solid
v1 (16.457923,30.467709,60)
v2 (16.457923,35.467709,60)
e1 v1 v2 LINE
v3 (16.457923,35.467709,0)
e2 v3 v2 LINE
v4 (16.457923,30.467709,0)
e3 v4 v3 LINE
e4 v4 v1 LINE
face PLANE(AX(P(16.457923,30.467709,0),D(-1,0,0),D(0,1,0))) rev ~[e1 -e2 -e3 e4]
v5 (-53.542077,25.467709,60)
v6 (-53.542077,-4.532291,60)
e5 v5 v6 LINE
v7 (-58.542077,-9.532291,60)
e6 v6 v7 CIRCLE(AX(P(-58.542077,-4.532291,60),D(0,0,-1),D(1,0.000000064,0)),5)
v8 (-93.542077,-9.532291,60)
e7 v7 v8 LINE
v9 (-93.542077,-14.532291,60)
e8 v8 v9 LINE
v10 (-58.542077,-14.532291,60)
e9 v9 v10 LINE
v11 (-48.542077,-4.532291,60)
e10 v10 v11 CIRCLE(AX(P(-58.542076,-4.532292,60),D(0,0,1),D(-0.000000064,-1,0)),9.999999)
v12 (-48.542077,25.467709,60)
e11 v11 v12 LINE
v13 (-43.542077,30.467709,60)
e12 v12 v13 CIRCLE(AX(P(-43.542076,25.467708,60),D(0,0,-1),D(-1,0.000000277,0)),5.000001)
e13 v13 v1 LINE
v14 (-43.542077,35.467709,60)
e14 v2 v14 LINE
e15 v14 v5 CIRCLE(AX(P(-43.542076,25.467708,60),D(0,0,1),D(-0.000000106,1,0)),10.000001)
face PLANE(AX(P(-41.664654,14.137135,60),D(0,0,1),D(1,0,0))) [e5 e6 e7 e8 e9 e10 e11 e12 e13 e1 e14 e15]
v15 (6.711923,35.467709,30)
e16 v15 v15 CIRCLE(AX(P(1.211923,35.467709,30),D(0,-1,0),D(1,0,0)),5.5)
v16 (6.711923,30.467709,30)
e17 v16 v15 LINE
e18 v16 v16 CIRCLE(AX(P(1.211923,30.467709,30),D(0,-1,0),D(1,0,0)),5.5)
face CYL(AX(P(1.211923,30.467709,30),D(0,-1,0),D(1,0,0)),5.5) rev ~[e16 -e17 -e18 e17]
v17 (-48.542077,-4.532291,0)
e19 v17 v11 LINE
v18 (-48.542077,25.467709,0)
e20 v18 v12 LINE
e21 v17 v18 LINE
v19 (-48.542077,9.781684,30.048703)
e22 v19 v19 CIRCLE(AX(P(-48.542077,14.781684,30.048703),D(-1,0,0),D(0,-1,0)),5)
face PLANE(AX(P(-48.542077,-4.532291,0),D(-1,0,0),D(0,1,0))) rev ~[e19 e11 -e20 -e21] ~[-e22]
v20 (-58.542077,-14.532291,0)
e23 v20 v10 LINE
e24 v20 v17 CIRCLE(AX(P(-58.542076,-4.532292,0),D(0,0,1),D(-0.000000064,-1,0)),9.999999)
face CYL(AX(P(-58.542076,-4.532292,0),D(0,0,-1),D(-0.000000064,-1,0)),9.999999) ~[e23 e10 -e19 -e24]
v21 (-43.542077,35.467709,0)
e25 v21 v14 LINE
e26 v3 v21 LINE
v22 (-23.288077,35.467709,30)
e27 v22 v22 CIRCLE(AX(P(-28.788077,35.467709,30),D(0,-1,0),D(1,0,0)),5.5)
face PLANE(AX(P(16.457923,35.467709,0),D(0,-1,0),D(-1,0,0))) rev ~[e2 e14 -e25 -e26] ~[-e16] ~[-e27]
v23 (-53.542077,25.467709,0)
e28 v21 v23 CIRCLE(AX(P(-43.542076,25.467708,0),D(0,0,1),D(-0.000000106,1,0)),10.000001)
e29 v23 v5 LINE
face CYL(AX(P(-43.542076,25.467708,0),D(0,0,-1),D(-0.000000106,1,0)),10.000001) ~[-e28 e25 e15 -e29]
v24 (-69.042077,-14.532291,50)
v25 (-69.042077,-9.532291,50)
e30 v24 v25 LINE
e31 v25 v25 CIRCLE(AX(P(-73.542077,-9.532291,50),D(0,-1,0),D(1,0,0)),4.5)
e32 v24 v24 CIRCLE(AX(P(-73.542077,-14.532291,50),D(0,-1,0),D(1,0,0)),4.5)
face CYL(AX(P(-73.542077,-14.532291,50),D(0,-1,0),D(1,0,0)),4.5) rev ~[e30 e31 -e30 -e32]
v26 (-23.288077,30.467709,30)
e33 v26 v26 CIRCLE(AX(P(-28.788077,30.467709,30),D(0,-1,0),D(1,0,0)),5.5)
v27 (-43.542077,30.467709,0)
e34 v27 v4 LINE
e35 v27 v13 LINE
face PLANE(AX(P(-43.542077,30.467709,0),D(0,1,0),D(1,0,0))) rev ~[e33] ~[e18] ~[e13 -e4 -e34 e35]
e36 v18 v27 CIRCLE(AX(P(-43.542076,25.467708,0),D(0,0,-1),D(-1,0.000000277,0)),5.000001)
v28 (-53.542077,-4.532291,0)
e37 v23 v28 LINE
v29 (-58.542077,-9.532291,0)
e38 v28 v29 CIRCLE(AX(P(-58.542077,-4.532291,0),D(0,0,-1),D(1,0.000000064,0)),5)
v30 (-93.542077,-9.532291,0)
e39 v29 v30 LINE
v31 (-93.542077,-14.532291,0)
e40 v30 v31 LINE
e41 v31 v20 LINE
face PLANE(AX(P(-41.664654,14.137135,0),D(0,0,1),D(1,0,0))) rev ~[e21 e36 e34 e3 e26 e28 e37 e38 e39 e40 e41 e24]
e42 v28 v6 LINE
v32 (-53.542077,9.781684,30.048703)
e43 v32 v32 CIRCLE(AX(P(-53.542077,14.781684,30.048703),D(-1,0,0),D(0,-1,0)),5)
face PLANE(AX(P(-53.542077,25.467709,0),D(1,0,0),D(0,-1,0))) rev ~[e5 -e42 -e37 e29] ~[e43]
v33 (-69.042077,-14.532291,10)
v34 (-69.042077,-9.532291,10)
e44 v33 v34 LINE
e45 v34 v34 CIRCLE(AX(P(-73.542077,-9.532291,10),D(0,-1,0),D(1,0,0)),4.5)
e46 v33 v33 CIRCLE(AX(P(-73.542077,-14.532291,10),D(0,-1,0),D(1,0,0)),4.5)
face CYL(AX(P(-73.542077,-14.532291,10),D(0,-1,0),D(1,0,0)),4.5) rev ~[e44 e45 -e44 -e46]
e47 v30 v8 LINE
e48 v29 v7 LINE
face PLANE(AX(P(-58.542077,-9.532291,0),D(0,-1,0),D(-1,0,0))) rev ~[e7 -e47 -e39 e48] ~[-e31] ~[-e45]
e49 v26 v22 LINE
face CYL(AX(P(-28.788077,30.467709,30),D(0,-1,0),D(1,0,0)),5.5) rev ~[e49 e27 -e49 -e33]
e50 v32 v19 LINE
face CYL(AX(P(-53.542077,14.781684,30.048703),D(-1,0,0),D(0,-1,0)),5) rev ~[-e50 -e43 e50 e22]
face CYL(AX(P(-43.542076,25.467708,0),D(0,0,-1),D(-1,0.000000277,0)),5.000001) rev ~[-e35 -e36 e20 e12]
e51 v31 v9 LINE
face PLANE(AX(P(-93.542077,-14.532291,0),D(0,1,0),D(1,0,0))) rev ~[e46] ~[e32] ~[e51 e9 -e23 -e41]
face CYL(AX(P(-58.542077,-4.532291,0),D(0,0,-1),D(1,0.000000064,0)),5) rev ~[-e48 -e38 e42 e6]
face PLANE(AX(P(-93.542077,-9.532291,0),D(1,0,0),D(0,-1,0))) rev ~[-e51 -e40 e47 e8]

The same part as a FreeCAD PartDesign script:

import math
import FreeCAD as App
import Part
import Sketcher
from FreeCAD import Vector

doc = App.newDocument("Part")
body = doc.addObject("PartDesign::Body", "Body")

# Sketch on XY plane
sketch1 = body.newObject("Sketcher::SketchObject", "Sketch")
sketch1.AttachmentSupport = (doc.getObject("XY_Plane"), [""])
sketch1.MapMode = "FlatFace"
sketch1.addGeometry(Part.LineSegment(Vector(-58.542077, -9.532291, 0), Vector(-93.542077, -9.532291, 0)), False)
sketch1.addGeometry(Part.LineSegment(Vector(-93.542077, -9.532291, 0), Vector(-93.542077, -14.532291, 0)), False)
sketch1.addGeometry(Part.LineSegment(Vector(-93.542077, -14.532291, 0), Vector(-58.542077, -14.532291, 0)), False)
sketch1.addGeometry(Part.ArcOfCircle(Part.Circle(Vector(-58.542076, -4.532292, 0), Vector(0, 0, 1), 9.999999), math.radians(-90.000004), math.radians(0.000004)), False)
sketch1.addGeometry(Part.LineSegment(Vector(-48.542077, -4.532291, 0), Vector(-48.542077, 25.467709, 0)), False)
sketch1.addGeometry(Part.ArcOfCircle(Part.Circle(Vector(-43.542076, 25.467708, 0), Vector(0, 0, 1), 5.000001), math.radians(90.000016), math.radians(179.999984)), False)
sketch1.addGeometry(Part.LineSegment(Vector(-43.542077, 30.467709, 0), Vector(16.457923, 30.467709, 0)), False)
sketch1.addGeometry(Part.LineSegment(Vector(16.457923, 30.467709, 0), Vector(16.457923, 35.467709, 0)), False)
sketch1.addGeometry(Part.LineSegment(Vector(16.457923, 35.467709, 0), Vector(-43.542077, 35.467709, 0)), False)
sketch1.addGeometry(Part.ArcOfCircle(Part.Circle(Vector(-43.542076, 25.467708, 0), Vector(0, 0, 1), 10.000001), math.radians(90.000006), math.radians(179.999994)), False)
sketch1.addGeometry(Part.LineSegment(Vector(-53.542077, 25.467709, 0), Vector(-53.542077, -4.532291, 0)), False)
sketch1.addGeometry(Part.ArcOfCircle(Part.Circle(Vector(-58.542077, -4.532291, 0), Vector(0, 0, 1), 5), math.radians(-90.000004), math.radians(0.000004)), False)
sketch1.addConstraint(Sketcher.Constraint("Coincident", 0, 2, 1, 1))
sketch1.addConstraint(Sketcher.Constraint("Coincident", 1, 2, 2, 1))
sketch1.addConstraint(Sketcher.Constraint("Tangent", 2, 2, 3, 1))
sketch1.addConstraint(Sketcher.Constraint("Tangent", 3, 2, 4, 1))
sketch1.addConstraint(Sketcher.Constraint("Tangent", 4, 2, 5, 2))
sketch1.addConstraint(Sketcher.Constraint("Tangent", 5, 1, 6, 1))
sketch1.addConstraint(Sketcher.Constraint("Coincident", 6, 2, 7, 1))
sketch1.addConstraint(Sketcher.Constraint("Coincident", 7, 2, 8, 1))
sketch1.addConstraint(Sketcher.Constraint("Tangent", 8, 2, 9, 1))
sketch1.addConstraint(Sketcher.Constraint("Tangent", 9, 2, 10, 1))
sketch1.addConstraint(Sketcher.Constraint("Tangent", 10, 2, 11, 2))
sketch1.addConstraint(Sketcher.Constraint("Tangent", 11, 1, 0, 1))
sketch1.addConstraint(Sketcher.Constraint("Horizontal", 0))
sketch1.addConstraint(Sketcher.Constraint("Vertical", 1))
sketch1.addConstraint(Sketcher.Constraint("Horizontal", 2))
sketch1.addConstraint(Sketcher.Constraint("Vertical", 4))
sketch1.addConstraint(Sketcher.Constraint("Horizontal", 6))
sketch1.addConstraint(Sketcher.Constraint("Vertical", 7))
sketch1.addConstraint(Sketcher.Constraint("Horizontal", 8))
sketch1.addConstraint(Sketcher.Constraint("Vertical", 10))
sketch1.addConstraint(Sketcher.Constraint("Coincident", 9, 3, 5, 3))
sketch1.addConstraint(Sketcher.Constraint("Coincident", 11, 3, 3, 3))
sketch1.addConstraint(Sketcher.Constraint("Equal", 3, 9))
sketch1.addConstraint(Sketcher.Constraint("Radius", 3, 9.999999))
sketch1.addConstraint(Sketcher.Constraint("Radius", 5, 5.000001))
sketch1.addConstraint(Sketcher.Constraint("DistanceX", 0, 2, 0, 1, 35.0))
sketch1.addConstraint(Sketcher.Constraint("DistanceX", 6, 1, 6, 2, 60.0))
sketch1.addConstraint(Sketcher.Constraint("DistanceY", 4, 1, 4, 2, 30.0))
sketch1.addConstraint(Sketcher.Constraint("DistanceY", 3, 3, -1, 1, 4.532292))
sketch1.addConstraint(Sketcher.Constraint("DistanceX", 3, 3, -1, 1, 58.542076))
pad1 = body.newObject("PartDesign::Pad", "Pad")
pad1.Profile = sketch1
pad1.Length = 60

# Sketch on YZ plane
sketch2 = body.newObject("Sketcher::SketchObject", "Sketch001")
sketch2.AttachmentSupport = (doc.getObject("YZ_Plane"), [""])
sketch2.MapMode = "FlatFace"
sketch2.AttachmentOffset = App.Placement(Vector(0, 0, -53.542077), App.Rotation())
sketch2.addGeometry(Part.Circle(Vector(14.781684, 30.048703, 0), Vector(0, 0, 1), 5), False)
sketch2.addConstraint(Sketcher.Constraint("Diameter", 0, 10.0))
sketch2.addConstraint(Sketcher.Constraint("DistanceX", -1, 1, 0, 3, 14.781684))
sketch2.addConstraint(Sketcher.Constraint("DistanceY", -1, 1, 0, 3, 30.048703))
pocket1 = body.newObject("PartDesign::Pocket", "Pocket")
pocket1.Profile = sketch2
pocket1.Length = 25
pocket1.Reversed = True

# Sketch on XZ plane
sketch3 = body.newObject("Sketcher::SketchObject", "Sketch002")
sketch3.AttachmentSupport = (doc.getObject("XZ_Plane"), [""])
sketch3.MapMode = "FlatFace"
sketch3.AttachmentOffset = App.Placement(Vector(0, 0, 14.532291), App.Rotation())
sketch3.addGeometry(Part.Circle(Vector(-73.542077, 50, 0), Vector(0, 0, 1), 4.5), False)
sketch3.addGeometry(Part.Circle(Vector(-73.542077, 10, 0), Vector(0, 0, 1), 4.5), False)
sketch3.addGeometry(Part.Circle(Vector(-28.542077, 30, 0), Vector(0, 0, 1), 5.5), False)
sketch3.addGeometry(Part.Circle(Vector(1.457923, 30, 0), Vector(0, 0, 1), 5.5), False)
sketch3.addConstraint(Sketcher.Constraint("Equal", 0, 1))
sketch3.addConstraint(Sketcher.Constraint("Equal", 2, 3))
sketch3.addConstraint(Sketcher.Constraint("Horizontal", 2, 3, 3, 3))
sketch3.addConstraint(Sketcher.Constraint("Vertical", 0, 3, 1, 3))
sketch3.addConstraint(Sketcher.Constraint("Diameter", 0, 9.0))
sketch3.addConstraint(Sketcher.Constraint("Diameter", 2, 11.0))
sketch3.addConstraint(Sketcher.Constraint("DistanceY", -1, 1, 0, 3, 50.0))
sketch3.addConstraint(Sketcher.Constraint("DistanceY", -1, 1, 1, 3, 10.0))
sketch3.addConstraint(Sketcher.Constraint("DistanceY", -1, 1, 2, 3, 30.0))
sketch3.addConstraint(Sketcher.Constraint("DistanceX", 0, 3, 2, 3, 45.0))
sketch3.addConstraint(Sketcher.Constraint("DistanceX", 2, 3, 3, 3, 30.0))
sketch3.addConstraint(Sketcher.Constraint("DistanceX", 0, 3, -1, 1, 73.542077))
pocket2 = body.newObject("PartDesign::Pocket", "Pocket001")
pocket2.Profile = sketch3
pocket2.Length = 25

# Sketch on XZ plane
sketch4 = body.newObject("Sketcher::SketchObject", "Sketch003")
sketch4.AttachmentSupport = (doc.getObject("XZ_Plane"), [""])
sketch4.MapMode = "FlatFace"
sketch4.AttachmentOffset = App.Placement(Vector(0, 0, 14.532291), App.Rotation())
sketch4.addGeometry(Part.Circle(Vector(-28.542077, 30, 0), Vector(0, 0, 1), 5.5), False)
sketch4.addGeometry(Part.Circle(Vector(1.457923, 30, 0), Vector(0, 0, 1), 5.5), False)
sketch4.addConstraint(Sketcher.Constraint("Equal", 0, 1))
sketch4.addConstraint(Sketcher.Constraint("Horizontal", 0, 3, 1, 3))
sketch4.addConstraint(Sketcher.Constraint("Diameter", 0, 11.0))
sketch4.addConstraint(Sketcher.Constraint("DistanceY", -1, 1, 0, 3, 30.0))
sketch4.addConstraint(Sketcher.Constraint("DistanceX", 0, 3, 1, 3, 30.0))
sketch4.addConstraint(Sketcher.Constraint("DistanceX", 0, 3, -1, 1, 28.542077))
pocket3 = body.newObject("PartDesign::Pocket", "Pocket002")
pocket3.Profile = sketch4
pocket3.Length = 25

# Sketch on XZ plane
sketch5 = body.newObject("Sketcher::SketchObject", "Sketch004")
sketch5.AttachmentSupport = (doc.getObject("XZ_Plane"), [""])
sketch5.MapMode = "FlatFace"
sketch5.AttachmentOffset = App.Placement(Vector(0, 0, -30.467709), App.Rotation())
sketch5.addGeometry(Part.Circle(Vector(-28.788077, 30, 0), Vector(0, 0, 1), 5.5), False)
sketch5.addGeometry(Part.Circle(Vector(1.211923, 30, 0), Vector(0, 0, 1), 5.5), False)
sketch5.addConstraint(Sketcher.Constraint("Equal", 0, 1))
sketch5.addConstraint(Sketcher.Constraint("Horizontal", 0, 3, 1, 3))
sketch5.addConstraint(Sketcher.Constraint("Diameter", 0, 11.0))
sketch5.addConstraint(Sketcher.Constraint("DistanceY", -1, 1, 0, 3, 30.0))
sketch5.addConstraint(Sketcher.Constraint("DistanceX", 0, 3, 1, 3, 30.0))
sketch5.addConstraint(Sketcher.Constraint("DistanceX", 0, 3, -1, 1, 28.788077))
pocket4 = body.newObject("PartDesign::Pocket", "Pocket003")
pocket4.Profile = sketch5
pocket4.Length = 25

doc.recompute()
